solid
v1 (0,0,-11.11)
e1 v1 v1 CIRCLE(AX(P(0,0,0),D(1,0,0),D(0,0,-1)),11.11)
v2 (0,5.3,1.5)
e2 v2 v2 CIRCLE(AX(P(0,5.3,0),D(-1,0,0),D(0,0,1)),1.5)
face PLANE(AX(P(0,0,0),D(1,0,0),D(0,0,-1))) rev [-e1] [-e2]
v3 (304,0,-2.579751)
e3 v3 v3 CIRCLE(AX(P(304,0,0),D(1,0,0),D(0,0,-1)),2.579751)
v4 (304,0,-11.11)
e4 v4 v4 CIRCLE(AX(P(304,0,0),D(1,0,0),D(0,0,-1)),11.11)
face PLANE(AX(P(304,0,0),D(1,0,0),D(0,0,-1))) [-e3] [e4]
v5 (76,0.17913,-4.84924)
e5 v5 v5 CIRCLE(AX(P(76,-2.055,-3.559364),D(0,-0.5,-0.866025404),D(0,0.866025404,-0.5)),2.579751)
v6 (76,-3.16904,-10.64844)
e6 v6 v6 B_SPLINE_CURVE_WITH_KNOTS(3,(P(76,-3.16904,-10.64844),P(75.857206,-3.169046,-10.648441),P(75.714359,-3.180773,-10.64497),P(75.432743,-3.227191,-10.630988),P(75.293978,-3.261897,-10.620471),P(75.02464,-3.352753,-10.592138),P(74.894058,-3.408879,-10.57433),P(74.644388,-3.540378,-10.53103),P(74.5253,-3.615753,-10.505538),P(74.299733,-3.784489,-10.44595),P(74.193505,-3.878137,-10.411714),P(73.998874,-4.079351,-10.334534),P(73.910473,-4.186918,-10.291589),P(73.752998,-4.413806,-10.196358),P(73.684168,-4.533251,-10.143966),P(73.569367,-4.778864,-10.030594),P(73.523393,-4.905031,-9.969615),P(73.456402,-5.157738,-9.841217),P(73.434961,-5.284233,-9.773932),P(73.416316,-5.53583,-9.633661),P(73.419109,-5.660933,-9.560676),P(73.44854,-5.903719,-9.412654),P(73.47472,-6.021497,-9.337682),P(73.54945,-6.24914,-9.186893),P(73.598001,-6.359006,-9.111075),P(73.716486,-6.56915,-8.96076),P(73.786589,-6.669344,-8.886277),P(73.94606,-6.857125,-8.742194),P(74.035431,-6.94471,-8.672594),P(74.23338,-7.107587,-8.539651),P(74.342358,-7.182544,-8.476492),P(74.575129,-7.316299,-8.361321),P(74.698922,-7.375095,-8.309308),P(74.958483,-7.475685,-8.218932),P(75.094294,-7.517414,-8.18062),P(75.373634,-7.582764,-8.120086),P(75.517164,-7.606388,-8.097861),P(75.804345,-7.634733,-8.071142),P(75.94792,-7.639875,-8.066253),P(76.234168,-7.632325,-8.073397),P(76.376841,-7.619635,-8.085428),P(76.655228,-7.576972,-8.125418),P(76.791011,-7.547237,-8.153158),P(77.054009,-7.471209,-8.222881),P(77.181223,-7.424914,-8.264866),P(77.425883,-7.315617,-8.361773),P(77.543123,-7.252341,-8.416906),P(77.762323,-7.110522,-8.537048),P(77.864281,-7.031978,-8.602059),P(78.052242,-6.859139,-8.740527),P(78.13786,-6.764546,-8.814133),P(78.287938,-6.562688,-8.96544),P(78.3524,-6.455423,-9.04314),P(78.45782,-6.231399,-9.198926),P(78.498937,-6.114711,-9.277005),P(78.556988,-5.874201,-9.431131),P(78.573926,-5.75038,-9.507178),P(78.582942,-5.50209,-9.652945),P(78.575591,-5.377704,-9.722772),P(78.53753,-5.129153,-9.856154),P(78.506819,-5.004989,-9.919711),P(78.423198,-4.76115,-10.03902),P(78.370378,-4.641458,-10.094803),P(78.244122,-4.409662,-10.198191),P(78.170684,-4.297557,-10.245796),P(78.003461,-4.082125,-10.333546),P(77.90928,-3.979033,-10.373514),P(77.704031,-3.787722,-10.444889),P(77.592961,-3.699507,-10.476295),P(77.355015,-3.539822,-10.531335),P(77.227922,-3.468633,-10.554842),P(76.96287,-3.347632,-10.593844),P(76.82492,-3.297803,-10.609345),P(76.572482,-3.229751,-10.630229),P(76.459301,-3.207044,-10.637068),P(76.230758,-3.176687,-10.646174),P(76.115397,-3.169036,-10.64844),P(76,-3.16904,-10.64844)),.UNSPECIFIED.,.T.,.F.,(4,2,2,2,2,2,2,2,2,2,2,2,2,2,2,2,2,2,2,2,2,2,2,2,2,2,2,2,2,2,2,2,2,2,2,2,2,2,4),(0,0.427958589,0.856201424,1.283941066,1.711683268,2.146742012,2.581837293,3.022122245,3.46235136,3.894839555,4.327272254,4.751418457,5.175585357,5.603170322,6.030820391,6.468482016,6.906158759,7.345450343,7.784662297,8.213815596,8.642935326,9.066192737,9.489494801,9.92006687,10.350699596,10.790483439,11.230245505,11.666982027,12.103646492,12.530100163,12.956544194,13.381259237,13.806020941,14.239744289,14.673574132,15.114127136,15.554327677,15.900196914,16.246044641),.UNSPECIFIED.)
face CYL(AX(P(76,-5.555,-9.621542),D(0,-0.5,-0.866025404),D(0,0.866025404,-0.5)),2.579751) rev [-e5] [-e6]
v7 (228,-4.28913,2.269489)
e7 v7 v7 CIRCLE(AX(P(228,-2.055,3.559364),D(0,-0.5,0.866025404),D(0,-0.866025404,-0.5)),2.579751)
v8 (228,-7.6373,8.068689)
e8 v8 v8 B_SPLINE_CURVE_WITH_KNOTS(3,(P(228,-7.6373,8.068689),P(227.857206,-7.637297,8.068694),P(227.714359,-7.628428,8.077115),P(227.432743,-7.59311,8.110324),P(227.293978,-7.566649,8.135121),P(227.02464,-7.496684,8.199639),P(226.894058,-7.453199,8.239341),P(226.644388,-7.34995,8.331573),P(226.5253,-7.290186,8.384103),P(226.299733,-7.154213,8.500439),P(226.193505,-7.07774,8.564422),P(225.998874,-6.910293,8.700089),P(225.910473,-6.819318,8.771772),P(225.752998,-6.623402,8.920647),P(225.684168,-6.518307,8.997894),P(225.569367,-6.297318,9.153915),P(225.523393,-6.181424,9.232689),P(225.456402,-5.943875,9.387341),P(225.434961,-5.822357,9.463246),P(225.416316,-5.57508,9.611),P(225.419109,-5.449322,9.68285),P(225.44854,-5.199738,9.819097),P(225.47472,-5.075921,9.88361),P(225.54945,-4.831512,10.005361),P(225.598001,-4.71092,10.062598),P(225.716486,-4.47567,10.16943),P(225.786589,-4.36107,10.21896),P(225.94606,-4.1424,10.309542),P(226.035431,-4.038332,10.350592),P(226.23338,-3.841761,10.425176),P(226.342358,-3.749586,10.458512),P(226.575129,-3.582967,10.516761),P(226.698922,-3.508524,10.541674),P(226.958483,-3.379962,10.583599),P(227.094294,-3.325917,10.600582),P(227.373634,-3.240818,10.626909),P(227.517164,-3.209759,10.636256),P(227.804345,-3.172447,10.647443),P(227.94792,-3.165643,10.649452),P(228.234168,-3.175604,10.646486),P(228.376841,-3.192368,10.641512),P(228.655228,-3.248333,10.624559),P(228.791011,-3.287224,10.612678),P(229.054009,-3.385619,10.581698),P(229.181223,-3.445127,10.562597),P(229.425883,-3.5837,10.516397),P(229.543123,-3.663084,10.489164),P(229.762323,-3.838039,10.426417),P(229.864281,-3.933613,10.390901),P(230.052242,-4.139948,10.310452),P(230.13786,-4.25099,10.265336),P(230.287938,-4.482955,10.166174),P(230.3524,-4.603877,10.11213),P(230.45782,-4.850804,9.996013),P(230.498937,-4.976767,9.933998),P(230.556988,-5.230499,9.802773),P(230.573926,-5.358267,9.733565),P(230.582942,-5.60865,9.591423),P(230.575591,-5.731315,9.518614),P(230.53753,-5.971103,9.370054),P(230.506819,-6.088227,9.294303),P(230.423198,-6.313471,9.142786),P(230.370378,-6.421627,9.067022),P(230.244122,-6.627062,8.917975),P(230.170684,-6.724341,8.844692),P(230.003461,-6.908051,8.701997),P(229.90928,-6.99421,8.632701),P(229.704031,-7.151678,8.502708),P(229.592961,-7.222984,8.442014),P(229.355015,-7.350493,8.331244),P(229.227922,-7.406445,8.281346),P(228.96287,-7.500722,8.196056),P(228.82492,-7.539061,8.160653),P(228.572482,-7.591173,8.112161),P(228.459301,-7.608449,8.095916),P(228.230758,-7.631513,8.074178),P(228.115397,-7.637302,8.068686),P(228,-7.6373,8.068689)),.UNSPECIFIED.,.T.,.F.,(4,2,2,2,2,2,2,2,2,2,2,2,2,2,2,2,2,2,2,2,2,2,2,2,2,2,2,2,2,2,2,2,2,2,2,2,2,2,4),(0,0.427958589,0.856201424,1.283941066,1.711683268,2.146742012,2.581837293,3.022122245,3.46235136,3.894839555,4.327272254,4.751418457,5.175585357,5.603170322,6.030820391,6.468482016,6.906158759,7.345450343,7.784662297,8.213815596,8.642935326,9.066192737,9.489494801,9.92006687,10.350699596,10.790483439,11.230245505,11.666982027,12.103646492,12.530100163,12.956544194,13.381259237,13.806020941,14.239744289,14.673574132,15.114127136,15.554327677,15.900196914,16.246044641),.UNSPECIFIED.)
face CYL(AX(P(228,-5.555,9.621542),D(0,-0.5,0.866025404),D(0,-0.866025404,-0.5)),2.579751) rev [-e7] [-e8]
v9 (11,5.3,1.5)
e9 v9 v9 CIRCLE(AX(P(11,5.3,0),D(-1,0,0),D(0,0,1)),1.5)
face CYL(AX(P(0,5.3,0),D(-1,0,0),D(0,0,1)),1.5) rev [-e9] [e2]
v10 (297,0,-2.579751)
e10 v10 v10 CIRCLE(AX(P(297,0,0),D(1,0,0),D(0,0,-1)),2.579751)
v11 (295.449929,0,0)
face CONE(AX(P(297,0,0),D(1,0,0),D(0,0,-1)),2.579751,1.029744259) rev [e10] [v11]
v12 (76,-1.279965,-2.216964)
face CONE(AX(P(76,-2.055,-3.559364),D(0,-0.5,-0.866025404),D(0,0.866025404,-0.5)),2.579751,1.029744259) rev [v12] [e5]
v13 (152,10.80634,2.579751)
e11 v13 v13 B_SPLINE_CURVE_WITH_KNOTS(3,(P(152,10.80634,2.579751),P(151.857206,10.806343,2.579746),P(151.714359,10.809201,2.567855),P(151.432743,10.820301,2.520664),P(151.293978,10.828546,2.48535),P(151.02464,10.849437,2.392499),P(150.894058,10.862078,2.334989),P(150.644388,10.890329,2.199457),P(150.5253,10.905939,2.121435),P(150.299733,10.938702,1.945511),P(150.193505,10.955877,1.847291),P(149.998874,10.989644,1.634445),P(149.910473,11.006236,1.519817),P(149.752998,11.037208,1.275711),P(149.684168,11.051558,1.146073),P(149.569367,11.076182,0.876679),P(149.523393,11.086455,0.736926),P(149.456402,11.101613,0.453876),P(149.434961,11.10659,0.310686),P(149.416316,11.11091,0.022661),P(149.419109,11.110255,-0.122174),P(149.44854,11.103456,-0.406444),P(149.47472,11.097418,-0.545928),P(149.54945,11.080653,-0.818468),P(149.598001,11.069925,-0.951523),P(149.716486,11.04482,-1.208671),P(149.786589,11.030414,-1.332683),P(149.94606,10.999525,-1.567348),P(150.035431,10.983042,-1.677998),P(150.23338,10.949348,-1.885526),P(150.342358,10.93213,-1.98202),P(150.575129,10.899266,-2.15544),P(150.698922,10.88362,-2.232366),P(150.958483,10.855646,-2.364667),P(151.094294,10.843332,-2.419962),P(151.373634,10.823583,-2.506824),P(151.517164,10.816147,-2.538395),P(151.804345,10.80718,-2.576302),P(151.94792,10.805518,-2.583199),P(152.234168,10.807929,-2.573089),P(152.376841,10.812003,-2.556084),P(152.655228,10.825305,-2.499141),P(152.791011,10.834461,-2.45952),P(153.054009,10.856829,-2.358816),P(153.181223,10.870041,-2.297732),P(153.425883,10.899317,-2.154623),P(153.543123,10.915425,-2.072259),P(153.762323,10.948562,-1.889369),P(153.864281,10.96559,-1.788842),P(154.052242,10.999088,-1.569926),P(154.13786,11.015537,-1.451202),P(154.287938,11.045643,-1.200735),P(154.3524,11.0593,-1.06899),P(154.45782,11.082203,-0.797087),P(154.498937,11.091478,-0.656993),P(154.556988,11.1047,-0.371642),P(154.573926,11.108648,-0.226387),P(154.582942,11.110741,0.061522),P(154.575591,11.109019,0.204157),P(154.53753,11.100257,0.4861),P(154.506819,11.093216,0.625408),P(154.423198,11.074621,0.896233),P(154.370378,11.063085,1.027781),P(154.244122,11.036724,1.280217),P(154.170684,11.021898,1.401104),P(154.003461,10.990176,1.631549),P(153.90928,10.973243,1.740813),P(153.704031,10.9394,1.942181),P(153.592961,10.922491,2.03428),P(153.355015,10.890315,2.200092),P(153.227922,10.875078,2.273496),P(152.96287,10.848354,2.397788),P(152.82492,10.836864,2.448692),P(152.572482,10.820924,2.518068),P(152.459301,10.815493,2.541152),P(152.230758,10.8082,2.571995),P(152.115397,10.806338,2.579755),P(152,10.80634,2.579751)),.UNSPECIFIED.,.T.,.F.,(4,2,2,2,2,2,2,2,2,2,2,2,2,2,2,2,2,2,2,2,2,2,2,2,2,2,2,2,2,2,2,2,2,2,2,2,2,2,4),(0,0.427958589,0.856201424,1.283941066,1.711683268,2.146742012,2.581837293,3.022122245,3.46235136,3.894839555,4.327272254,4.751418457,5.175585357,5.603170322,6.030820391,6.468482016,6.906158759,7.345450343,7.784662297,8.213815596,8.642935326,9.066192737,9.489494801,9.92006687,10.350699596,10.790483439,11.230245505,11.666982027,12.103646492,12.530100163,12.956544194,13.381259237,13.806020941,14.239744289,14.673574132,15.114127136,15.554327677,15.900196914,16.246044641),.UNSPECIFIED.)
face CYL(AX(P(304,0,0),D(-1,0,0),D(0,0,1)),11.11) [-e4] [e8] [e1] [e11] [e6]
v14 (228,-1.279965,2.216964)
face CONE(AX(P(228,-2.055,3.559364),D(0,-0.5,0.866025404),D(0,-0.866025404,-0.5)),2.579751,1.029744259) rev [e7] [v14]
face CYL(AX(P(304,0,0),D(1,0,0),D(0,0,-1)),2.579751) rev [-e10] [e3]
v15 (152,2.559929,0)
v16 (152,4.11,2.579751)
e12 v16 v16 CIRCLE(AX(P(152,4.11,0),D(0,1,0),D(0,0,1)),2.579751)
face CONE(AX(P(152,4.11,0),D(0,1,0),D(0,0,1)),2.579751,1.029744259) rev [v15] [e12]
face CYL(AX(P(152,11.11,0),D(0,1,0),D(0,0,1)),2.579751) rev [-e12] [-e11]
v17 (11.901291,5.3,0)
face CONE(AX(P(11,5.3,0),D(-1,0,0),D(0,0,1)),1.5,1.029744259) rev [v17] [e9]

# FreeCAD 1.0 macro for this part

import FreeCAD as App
import Part
import Sketcher

doc = App.newDocument("Part")
body = doc.addObject("PartDesign::Body", "Body")

# Sketch on YZ plane
sketch1 = body.newObject("Sketcher::SketchObject", "Sketch")
sketch1.AttachmentSupport = (doc.getObject("YZ_Plane"), [""])
sketch1.MapMode = "FlatFace"
sketch1.addGeometry(Part.Circle(App.Vector(0, 0, 0), App.Vector(0, 0, 1), 11.11), False)
sketch1.addConstraint([
    Sketcher.Constraint("Coincident", 0, 3, -1, 1),
    Sketcher.Constraint("Diameter", 0, 22.22),
])
pad1 = body.newObject("PartDesign::Pad", "Pad")
pad1.Profile = sketch1
pad1.Length = 304

# Sketch on YZ plane
sketch2 = body.newObject("Sketcher::SketchObject", "Sketch001")
sketch2.AttachmentSupport = (doc.getObject("YZ_Plane"), [""])
sketch2.MapMode = "FlatFace"
sketch2.addGeometry(Part.Circle(App.Vector(5.3, 0, 0), App.Vector(0, 0, 1), 1.5), False)
sketch2.addConstraint([
    Sketcher.Constraint("PointOnObject", 0, 3, -1),
    Sketcher.Constraint("Diameter", 0, 3.0),
    Sketcher.Constraint("DistanceX", -1, 1, 0, 3, 5.3),
])
doc.recompute()
hole = body.newObject("PartDesign::Hole", "Hole")
hole.Profile = sketch2
hole.ThreadType = "None"
hole.Diameter = 3
hole.DepthType = "Dimension"
hole.Depth = 11
hole.DrillPoint = "Angled"
hole.DrillPointAngle = 118
hole.Reversed = True

# Sketch on XZ plane
sketch3 = body.newObject("Sketcher::SketchObject", "Sketch002")
sketch3.AttachmentSupport = (doc.getObject("XZ_Plane"), [""])
sketch3.MapMode = "FlatFace"
sketch3.AttachmentOffset = App.Placement(App.Vector(0, 0, -11.11), App.Rotation())
sketch3.addGeometry(Part.Circle(App.Vector(152, 0, 0), App.Vector(0, 0, 1), 2.579751), False)
sketch3.addConstraint([
    Sketcher.Constraint("PointOnObject", 0, 3, -1),
    Sketcher.Constraint("DistanceX", -1, 1, 0, 3, 152.0),
    Sketcher.Constraint("Diameter", 0, 5.159502),
])
doc.recompute()
hole2 = body.newObject("PartDesign::Hole", "Hole001")
hole2.Profile = sketch3
hole2.ThreadType = "None"
hole2.Diameter = 5.159502
hole2.DepthType = "Dimension"
hole2.Depth = 7
hole2.DrillPoint = "Angled"
hole2.DrillPointAngle = 118
hole2.Reversed = True

# Sketch on an angled plane
sketch4 = body.newObject("Sketcher::SketchObject", "Sketch003")
sketch4.Placement = App.Placement(App.Vector(0, -5.555, -9.621542), App.Rotation(App.Vector(-1, 0, 0), App.Vector(0, 0.866025404, -0.5), App.Vector(0, -0.5, -0.866025404), "ZXY"))
sketch4.addGeometry(Part.Circle(App.Vector(-76, 0, 0), App.Vector(0, 0, 1), 2.579751), False)
sketch4.addConstraint([
    Sketcher.Constraint("PointOnObject", 0, 3, -1),
    Sketcher.Constraint("DistanceX", 0, 3, -1, 1, 76.0),
    Sketcher.Constraint("Diameter", 0, 5.159502),
])
doc.recompute()
hole3 = body.newObject("PartDesign::Hole", "Hole002")
hole3.Profile = sketch4
hole3.ThreadType = "None"
hole3.Diameter = 5.159502
hole3.DepthType = "Dimension"
hole3.Depth = 7
hole3.DrillPoint = "Angled"
hole3.DrillPointAngle = 118

# Sketch on an angled plane
sketch5 = body.newObject("Sketcher::SketchObject", "Sketch004")
sketch5.Placement = App.Placement(App.Vector(0, -5.555, 9.621542), App.Rotation(App.Vector(-1, 0, 0), App.Vector(0, -0.866025404, -0.5), App.Vector(0, -0.5, 0.866025404), "ZXY"))
sketch5.addGeometry(Part.Circle(App.Vector(-228, 0, 0), App.Vector(0, 0, 1), 2.579751), False)
sketch5.addConstraint([
    Sketcher.Constraint("PointOnObject", 0, 3, -1),
    Sketcher.Constraint("DistanceX", 0, 3, -1, 1, 228.0),
    Sketcher.Constraint("Diameter", 0, 5.159502),
])
doc.recompute()
hole4 = body.newObject("PartDesign::Hole", "Hole003")
hole4.Profile = sketch5
hole4.ThreadType = "None"
hole4.Diameter = 5.159502
hole4.DepthType = "Dimension"
hole4.Depth = 7
hole4.DrillPoint = "Angled"
hole4.DrillPointAngle = 118

# Sketch on YZ plane
sketch6 = body.newObject("Sketcher::SketchObject", "Sketch005")
sketch6.AttachmentSupport = (doc.getObject("YZ_Plane"), [""])
sketch6.MapMode = "FlatFace"
sketch6.AttachmentOffset = App.Placement(App.Vector(0, 0, 304), App.Rotation())
sketch6.addGeometry(Part.Circle(App.Vector(0, 0, 0), App.Vector(0, 0, 1), 2.579751), False)
sketch6.addConstraint([
    Sketcher.Constraint("Coincident", 0, 3, -1, 1),
    Sketcher.Constraint("Diameter", 0, 5.159502),
])
doc.recompute()
hole5 = body.newObject("PartDesign::Hole", "Hole004")
hole5.Profile = sketch6
hole5.ThreadType = "None"
hole5.Diameter = 5.159502
hole5.DepthType = "Dimension"
hole5.Depth = 7
hole5.DrillPoint = "Angled"
hole5.DrillPointAngle = 118

doc.recompute()
